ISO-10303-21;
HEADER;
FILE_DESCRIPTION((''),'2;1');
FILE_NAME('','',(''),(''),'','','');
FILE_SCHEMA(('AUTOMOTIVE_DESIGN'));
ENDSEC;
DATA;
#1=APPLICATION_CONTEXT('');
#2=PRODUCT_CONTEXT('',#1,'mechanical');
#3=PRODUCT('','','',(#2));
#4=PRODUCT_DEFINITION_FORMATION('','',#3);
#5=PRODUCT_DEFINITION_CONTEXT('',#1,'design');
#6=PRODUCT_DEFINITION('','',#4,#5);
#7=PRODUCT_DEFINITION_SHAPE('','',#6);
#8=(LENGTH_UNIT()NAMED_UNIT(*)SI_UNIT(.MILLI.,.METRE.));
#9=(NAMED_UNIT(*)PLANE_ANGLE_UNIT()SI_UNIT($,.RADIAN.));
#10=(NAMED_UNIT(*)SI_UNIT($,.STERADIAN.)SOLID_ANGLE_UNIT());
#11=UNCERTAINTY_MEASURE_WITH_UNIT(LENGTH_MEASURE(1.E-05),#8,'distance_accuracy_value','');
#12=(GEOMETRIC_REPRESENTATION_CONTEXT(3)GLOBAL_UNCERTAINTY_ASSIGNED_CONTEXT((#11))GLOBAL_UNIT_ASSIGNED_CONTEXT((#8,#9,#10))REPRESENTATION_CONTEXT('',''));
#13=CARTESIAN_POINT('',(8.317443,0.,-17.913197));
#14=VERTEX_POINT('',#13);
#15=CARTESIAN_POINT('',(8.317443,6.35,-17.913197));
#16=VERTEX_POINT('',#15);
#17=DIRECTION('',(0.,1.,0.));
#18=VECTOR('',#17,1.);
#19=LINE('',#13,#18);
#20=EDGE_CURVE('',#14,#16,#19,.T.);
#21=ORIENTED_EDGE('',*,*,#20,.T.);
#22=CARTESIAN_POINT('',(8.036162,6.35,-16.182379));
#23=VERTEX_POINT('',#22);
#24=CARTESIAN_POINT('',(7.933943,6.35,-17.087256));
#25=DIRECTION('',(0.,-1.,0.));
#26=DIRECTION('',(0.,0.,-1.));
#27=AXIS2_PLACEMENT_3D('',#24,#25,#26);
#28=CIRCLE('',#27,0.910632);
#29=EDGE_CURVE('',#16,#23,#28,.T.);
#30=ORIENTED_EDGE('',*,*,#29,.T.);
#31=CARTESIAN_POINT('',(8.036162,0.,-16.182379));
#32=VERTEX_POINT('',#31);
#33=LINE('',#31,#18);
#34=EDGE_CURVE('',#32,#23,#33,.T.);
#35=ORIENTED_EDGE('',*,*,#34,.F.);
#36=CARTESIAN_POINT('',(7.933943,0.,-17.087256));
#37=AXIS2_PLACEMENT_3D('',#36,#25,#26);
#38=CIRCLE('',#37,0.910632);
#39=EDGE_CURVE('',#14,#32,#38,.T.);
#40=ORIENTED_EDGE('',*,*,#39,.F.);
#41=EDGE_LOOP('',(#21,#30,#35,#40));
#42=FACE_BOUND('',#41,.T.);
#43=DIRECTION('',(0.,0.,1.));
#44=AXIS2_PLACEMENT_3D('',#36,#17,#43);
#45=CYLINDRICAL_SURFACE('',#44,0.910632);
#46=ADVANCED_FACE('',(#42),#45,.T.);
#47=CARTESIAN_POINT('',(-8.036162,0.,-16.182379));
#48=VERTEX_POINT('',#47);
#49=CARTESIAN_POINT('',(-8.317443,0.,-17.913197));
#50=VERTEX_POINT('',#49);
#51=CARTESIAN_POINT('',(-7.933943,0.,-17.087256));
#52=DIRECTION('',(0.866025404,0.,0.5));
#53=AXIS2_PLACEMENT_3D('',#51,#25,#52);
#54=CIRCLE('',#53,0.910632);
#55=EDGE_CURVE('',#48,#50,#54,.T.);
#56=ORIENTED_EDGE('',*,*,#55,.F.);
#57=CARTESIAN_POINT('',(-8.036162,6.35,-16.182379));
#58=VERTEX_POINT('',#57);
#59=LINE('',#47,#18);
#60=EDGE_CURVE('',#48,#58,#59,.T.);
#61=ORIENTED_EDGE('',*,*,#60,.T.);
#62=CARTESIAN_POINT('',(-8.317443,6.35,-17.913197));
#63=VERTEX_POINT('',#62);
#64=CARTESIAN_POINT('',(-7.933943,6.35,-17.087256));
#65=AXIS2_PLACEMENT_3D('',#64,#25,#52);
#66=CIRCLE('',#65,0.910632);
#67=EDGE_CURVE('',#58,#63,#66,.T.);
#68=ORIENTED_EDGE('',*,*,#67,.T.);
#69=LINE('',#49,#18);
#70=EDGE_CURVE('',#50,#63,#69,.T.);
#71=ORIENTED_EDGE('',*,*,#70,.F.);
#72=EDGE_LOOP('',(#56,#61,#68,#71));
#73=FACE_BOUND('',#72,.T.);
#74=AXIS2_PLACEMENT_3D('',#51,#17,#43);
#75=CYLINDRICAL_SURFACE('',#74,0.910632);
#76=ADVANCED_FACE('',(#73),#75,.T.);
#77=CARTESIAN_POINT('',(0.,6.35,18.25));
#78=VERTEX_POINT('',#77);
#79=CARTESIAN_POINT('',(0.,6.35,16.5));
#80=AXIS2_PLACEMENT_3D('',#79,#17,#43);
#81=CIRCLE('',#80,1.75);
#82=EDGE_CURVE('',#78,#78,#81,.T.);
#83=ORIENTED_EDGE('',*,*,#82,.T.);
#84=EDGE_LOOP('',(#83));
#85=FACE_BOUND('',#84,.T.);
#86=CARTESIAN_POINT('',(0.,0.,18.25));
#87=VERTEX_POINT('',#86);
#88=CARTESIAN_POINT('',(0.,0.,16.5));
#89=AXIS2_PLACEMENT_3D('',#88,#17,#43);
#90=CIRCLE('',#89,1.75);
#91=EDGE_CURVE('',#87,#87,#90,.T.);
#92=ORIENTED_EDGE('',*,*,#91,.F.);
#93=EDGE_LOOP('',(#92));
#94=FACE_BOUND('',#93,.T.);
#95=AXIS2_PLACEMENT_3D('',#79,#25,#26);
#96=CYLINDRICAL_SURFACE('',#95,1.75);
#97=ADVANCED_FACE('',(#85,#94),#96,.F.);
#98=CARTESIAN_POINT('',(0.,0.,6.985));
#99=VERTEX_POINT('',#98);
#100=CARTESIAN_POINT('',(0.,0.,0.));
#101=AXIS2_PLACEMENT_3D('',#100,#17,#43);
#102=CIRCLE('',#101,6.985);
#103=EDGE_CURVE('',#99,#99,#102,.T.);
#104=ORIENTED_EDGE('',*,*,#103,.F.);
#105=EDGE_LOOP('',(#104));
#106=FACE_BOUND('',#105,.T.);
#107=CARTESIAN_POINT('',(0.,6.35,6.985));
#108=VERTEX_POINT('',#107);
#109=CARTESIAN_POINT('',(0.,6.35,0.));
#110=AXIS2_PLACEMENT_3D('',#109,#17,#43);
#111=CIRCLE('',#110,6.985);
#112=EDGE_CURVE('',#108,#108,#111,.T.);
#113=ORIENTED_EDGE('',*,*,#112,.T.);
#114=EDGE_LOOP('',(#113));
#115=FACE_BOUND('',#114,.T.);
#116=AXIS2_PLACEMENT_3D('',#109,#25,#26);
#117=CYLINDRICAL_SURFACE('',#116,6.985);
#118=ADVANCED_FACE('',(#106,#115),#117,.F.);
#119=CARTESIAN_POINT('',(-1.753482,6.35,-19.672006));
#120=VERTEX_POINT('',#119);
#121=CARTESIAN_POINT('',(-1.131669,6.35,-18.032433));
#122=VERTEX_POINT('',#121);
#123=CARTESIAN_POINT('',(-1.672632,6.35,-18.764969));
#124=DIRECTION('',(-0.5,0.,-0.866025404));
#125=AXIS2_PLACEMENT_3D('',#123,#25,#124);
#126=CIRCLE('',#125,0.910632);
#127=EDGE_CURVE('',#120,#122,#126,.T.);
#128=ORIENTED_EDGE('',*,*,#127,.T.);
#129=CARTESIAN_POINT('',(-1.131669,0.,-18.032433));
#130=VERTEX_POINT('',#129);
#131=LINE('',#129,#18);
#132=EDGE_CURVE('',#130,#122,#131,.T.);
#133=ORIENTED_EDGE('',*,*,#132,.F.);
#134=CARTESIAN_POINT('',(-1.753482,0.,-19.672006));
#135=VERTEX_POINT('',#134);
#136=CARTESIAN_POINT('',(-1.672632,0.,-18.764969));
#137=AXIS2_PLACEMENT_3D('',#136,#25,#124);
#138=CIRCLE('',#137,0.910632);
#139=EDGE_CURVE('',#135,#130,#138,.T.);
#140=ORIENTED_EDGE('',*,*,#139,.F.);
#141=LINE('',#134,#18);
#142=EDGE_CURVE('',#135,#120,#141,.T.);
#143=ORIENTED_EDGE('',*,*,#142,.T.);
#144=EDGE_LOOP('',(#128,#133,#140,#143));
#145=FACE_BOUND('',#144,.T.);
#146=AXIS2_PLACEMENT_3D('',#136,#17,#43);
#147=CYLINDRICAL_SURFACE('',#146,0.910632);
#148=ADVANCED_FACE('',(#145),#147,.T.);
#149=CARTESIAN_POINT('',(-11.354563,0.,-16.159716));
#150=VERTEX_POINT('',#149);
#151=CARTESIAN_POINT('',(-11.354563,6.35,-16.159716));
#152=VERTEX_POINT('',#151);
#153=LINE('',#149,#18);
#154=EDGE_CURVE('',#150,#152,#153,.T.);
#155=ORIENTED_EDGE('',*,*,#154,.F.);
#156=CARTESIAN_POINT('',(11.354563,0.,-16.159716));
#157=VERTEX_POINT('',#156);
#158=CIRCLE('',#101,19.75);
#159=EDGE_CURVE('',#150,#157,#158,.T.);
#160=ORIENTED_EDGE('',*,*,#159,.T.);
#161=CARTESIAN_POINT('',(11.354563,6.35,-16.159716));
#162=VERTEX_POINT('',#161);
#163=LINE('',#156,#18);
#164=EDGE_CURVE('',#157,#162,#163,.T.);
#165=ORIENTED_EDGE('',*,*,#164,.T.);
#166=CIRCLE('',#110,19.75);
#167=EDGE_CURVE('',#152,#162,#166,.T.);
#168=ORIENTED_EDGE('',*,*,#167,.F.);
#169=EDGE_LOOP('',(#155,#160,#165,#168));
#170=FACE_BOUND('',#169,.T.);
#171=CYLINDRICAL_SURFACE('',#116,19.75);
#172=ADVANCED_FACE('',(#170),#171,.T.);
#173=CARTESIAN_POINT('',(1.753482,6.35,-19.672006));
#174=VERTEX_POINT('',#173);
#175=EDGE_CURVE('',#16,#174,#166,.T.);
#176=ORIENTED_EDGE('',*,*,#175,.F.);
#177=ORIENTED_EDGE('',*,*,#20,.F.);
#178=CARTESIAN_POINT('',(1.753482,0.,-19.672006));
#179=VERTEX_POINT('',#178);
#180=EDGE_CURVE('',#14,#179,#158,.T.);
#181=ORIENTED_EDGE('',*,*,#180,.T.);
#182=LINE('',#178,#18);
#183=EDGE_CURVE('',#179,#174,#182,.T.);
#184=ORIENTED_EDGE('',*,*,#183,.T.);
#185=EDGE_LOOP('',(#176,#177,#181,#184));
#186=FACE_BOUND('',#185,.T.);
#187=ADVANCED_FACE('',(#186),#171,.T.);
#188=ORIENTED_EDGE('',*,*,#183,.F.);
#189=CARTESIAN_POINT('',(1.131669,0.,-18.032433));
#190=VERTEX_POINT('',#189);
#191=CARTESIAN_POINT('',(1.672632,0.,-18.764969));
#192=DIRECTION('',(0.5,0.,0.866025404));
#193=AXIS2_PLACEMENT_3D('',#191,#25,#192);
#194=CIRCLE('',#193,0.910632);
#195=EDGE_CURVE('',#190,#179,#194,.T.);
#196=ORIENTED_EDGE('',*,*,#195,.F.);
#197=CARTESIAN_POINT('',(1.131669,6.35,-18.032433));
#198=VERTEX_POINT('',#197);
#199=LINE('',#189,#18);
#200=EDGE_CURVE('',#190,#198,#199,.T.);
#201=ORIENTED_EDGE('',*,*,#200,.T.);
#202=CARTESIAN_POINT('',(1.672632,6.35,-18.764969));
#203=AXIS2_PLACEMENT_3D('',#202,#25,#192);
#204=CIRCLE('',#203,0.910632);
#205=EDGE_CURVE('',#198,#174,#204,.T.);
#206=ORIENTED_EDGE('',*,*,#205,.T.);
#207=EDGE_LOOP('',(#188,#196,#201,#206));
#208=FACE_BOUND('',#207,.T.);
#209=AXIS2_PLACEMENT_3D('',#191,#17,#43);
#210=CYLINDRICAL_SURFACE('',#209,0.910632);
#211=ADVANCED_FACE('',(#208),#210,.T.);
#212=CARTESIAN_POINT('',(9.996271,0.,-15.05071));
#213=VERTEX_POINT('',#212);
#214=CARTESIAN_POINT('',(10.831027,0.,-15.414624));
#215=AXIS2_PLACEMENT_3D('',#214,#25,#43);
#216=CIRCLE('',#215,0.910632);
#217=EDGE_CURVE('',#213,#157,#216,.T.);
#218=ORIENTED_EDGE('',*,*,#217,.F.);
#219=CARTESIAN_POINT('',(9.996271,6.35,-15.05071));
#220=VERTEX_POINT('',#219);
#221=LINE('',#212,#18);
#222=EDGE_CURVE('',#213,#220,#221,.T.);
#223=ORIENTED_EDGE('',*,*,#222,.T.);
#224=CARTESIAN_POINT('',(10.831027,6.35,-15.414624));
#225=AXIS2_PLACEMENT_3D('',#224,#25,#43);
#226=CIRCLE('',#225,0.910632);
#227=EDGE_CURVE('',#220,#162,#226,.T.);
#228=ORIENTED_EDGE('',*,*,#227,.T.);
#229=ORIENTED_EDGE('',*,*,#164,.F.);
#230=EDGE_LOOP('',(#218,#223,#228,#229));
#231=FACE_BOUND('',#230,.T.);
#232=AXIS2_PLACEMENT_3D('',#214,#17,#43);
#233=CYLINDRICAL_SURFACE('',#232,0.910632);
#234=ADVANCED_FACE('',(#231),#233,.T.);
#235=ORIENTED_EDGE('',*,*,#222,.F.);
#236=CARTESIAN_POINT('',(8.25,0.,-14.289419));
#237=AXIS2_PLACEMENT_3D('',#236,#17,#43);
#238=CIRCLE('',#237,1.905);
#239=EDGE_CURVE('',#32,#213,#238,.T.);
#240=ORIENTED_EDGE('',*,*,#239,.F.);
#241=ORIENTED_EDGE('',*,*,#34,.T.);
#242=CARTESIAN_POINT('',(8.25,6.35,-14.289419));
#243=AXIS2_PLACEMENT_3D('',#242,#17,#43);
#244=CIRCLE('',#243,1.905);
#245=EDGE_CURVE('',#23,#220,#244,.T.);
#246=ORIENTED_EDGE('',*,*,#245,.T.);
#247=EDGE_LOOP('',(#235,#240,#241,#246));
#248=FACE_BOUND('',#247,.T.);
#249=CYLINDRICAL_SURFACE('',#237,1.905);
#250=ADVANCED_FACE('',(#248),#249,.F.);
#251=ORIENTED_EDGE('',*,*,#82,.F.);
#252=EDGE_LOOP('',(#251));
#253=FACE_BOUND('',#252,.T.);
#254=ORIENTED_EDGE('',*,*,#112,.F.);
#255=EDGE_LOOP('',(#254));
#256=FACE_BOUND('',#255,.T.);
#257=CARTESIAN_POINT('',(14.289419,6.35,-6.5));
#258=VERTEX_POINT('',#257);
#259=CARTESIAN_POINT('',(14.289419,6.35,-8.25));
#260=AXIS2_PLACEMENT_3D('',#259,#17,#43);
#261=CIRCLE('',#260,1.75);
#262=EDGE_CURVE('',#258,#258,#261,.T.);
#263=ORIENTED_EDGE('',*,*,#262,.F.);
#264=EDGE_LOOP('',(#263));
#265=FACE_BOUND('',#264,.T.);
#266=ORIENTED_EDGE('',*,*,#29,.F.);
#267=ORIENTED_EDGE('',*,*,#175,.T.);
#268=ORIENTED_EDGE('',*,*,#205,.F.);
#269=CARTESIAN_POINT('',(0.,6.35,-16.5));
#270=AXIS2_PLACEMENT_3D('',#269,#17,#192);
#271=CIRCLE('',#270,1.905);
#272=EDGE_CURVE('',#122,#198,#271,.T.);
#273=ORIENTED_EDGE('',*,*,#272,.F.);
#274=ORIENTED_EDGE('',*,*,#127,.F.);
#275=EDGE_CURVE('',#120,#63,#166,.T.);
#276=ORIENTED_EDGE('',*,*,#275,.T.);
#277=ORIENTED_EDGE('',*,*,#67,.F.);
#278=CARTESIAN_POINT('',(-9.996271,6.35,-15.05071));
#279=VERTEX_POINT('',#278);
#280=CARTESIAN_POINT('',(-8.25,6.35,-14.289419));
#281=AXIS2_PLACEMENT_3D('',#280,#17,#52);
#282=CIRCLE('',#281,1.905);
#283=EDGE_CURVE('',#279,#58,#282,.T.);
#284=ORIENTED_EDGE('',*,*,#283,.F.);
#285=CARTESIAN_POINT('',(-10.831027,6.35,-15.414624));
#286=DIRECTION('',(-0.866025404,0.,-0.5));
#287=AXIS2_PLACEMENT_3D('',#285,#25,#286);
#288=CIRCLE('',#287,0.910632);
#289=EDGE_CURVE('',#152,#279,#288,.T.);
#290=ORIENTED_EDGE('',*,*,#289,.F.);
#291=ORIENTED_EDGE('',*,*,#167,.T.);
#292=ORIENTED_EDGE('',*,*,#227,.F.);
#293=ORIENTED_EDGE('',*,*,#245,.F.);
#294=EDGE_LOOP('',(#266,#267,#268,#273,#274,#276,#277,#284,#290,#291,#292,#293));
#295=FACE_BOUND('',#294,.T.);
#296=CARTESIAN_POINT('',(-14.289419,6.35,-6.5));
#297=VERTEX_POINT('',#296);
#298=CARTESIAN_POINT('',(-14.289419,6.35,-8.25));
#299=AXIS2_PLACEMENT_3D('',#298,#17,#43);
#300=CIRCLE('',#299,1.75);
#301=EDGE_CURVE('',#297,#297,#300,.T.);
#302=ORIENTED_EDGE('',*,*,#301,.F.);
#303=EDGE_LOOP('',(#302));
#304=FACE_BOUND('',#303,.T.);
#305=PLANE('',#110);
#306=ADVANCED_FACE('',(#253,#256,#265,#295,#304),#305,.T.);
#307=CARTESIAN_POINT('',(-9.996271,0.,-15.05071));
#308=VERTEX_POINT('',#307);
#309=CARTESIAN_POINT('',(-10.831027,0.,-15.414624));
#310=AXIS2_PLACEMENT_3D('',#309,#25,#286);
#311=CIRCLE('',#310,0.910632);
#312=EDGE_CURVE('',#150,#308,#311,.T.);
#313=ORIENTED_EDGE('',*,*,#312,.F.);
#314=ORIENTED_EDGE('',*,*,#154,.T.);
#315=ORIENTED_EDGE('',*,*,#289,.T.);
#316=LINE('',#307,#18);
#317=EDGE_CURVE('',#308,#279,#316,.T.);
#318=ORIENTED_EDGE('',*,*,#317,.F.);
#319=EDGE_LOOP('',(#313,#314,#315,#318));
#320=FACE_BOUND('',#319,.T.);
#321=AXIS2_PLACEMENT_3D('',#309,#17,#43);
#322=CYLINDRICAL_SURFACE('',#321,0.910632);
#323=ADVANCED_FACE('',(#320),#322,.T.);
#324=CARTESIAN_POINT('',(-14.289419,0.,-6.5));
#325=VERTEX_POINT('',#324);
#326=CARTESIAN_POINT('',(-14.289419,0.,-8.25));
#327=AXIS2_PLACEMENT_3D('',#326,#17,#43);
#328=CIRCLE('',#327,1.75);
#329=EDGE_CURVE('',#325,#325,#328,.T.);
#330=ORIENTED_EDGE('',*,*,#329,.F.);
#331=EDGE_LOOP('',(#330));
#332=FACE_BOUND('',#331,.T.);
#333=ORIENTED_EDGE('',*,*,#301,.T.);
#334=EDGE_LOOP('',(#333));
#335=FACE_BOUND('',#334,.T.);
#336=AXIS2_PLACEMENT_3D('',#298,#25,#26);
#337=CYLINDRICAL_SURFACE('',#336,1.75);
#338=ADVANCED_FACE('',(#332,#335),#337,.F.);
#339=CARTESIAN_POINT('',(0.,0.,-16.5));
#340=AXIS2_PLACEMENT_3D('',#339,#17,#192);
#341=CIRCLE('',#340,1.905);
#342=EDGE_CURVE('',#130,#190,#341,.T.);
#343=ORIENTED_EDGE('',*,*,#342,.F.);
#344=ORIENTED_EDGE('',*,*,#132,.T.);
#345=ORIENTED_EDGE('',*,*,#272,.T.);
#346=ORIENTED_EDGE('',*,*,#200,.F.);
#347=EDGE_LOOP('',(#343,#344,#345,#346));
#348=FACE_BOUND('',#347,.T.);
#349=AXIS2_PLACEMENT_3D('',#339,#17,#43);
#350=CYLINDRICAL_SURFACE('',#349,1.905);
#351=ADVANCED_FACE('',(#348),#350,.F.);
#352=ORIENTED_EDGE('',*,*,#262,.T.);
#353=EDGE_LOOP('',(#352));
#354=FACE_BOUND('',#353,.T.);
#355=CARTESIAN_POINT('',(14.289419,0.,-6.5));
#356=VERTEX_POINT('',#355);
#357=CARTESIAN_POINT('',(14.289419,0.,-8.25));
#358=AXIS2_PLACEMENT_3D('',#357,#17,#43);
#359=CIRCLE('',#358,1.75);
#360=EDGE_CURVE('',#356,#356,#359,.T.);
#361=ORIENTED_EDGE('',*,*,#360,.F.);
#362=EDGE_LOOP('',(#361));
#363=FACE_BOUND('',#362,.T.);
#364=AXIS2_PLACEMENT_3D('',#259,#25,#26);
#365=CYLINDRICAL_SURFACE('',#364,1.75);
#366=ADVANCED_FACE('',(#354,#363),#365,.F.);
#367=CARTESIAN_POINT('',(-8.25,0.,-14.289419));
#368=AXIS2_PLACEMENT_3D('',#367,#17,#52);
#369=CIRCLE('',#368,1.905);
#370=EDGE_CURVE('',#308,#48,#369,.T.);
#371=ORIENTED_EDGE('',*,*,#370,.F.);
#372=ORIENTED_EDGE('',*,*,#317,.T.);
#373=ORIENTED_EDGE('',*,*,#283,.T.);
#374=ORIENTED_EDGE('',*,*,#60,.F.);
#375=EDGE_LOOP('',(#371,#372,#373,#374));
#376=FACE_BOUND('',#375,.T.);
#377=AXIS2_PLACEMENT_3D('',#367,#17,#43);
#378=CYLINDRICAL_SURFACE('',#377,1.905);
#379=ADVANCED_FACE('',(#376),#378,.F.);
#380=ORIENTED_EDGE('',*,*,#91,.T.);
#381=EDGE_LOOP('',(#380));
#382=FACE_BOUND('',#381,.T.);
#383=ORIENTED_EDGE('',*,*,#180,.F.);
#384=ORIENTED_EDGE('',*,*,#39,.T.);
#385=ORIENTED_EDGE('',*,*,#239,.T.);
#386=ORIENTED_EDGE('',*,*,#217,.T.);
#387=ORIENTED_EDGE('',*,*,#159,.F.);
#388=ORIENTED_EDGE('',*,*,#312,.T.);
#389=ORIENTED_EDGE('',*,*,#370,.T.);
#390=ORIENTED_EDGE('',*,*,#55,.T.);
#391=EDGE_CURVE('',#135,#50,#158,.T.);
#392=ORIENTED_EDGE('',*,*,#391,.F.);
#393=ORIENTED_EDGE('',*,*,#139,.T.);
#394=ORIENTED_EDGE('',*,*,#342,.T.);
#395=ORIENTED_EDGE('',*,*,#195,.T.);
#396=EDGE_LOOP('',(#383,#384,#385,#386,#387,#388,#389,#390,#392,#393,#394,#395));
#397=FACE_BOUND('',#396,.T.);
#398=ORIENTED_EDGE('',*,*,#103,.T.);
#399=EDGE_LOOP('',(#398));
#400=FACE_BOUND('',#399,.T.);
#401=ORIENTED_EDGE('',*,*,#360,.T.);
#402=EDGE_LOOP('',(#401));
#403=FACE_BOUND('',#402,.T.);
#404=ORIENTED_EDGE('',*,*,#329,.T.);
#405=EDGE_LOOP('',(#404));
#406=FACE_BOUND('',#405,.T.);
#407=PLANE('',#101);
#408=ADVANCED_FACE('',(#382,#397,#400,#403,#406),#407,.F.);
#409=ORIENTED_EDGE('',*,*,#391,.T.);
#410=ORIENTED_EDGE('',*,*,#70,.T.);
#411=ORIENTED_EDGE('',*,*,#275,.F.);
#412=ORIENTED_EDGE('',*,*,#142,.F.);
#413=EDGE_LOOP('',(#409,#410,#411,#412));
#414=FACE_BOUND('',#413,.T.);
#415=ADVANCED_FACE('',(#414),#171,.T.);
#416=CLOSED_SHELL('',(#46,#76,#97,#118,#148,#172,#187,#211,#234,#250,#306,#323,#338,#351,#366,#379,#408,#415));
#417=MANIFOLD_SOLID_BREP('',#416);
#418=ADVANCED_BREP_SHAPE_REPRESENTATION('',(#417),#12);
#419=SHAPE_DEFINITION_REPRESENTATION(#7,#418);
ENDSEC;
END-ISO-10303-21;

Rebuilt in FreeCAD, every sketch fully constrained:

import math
import FreeCAD as App
import Part
import Sketcher

V = App.Vector
Q = App.Units.Quantity

doc = App.newDocument("Part")
params = doc.addObject("Spreadsheet::Sheet", "Params")
for row, (alias, value) in enumerate([
    ("sketch1_diameter", "0.55 in"),
    ("pad1_length", "0.25 in"),
    ("sketch2_radius", "0.075 in"),
], start=1):
    params.set(f"A{row}", alias)
    params.set(f"B{row}", "=" + value)
    params.setAlias(f"B{row}", alias)

body = doc.addObject("PartDesign::Body", "Body")

# Sketch on XZ plane
sketch1 = body.newObject("Sketcher::SketchObject", "Sketch")
sketch1.AttachmentSupport = (doc.getObject("XZ_Plane"), [""])
sketch1.MapMode = "FlatFace"
sketch1.addGeometry([
    Part.Circle(V(0, 0, 0), V(0, 0, 1), 19.8),  # 0
    Part.Circle(V(0, 16.5, 0), V(0, 0, 1), 1.8),  # 1
    Part.Circle(V(-14.3, -8.2, 0), V(0, 0, 1), 1.8),  # 2
    Part.Circle(V(0, 0, 0), V(0, 0, 1), 7),  # 3
    Part.Circle(V(14.3, -8.2, 0), V(0, 0, 1), 1.8),  # 4
], False)
sketch1.addConstraint([
    Sketcher.Constraint("Coincident", 0, 3, -1, 1),
    Sketcher.Constraint("Coincident", 3, 3, -1, 1),
    Sketcher.Constraint("Equal", 1, 2),
    Sketcher.Constraint("Equal", 2, 4),
    Sketcher.Constraint("Symmetric", 2, 3, 4, 3, -2),
    Sketcher.Constraint("PointOnObject", 1, 3, -2),
    Sketcher.Constraint("Diameter", 3, Q("0.55 in")),
    Sketcher.Constraint("Diameter", 0, 39.5),
    Sketcher.Constraint("Diameter", 1, 3.5),
    Sketcher.Constraint("DistanceY", -1, 1, 1, 3, 16.5),
    Sketcher.Constraint("DistanceY", 2, 3, -1, 1, 8.25),
    Sketcher.Constraint("DistanceX", 2, 3, -1, 1, 14.289419),
])
sketch1.setExpression("Constraints[6]", "Params.sketch1_diameter")
pad1 = body.newObject("PartDesign::Pad", "Pad")
pad1.Profile = sketch1
pad1.setExpression("Length", "Params.pad1_length")
pad1.Reversed = True

# Sketch on XZ plane
sketch2 = body.newObject("Sketcher::SketchObject", "Sketch001")
sketch2.AttachmentSupport = (doc.getObject("XZ_Plane"), [""])
sketch2.MapMode = "FlatFace"
sketch2.AttachmentOffset = App.Placement(V(0, 0, -0.25 * 25.4), App.Rotation())
sketch2.addGeometry([
    Part.ArcOfCircle(Part.Circle(V(8.2, -14.3, 0), V(0, 0, 1), 1.9), math.radians(-24), math.radians(264)),
    Part.ArcOfCircle(Part.Circle(V(10.8, -15.4, 0), V(0, 0, 1), 0.9), math.radians(156), math.radians(305)),
    Part.ArcOfCircle(Part.Circle(V(0, 0, 0), V(0, 0, 1), 19.7), math.radians(-65.09), math.radians(-54.91)),
    Part.ArcOfCircle(Part.Circle(V(7.9, -17.1, 0), V(0, 0, 1), 0.9), math.radians(-65), math.radians(84)),
], False)
sketch2.addConstraint([
    Sketcher.Constraint("Tangent", 0, 1, 1, 1),
    Sketcher.Constraint("Tangent", 1, 2, 2, 2),
    Sketcher.Constraint("Tangent", 2, 1, 3, 1),
    Sketcher.Constraint("Tangent", 3, 2, 0, 2),
    Sketcher.Constraint("Coincident", 2, 3, -1, 1),
    Sketcher.Constraint("Equal", 1, 3),
    Sketcher.Constraint("Radius", 0, Q("0.075 in")),
    Sketcher.Constraint("Radius", 2, 19.75),
    Sketcher.Constraint("Radius", 1, 0.910632),
    Sketcher.Constraint("DistanceX", -1, 1, 0, 3, 8.25),
    Sketcher.Constraint("DistanceY", 0, 3, -1, 1, 14.289419),
])
sketch2.setExpression("Constraints[6]", "Params.sketch2_radius")
pocket1 = body.newObject("PartDesign::Pocket", "Pocket")
pocket1.Profile = sketch2
pocket1.Type = "ThroughAll"
pocket1.Reversed = True
doc.recompute()

polarpattern = body.newObject("PartDesign::PolarPattern", "PolarPattern")
polarpattern.Originals = [pocket1]
polarpattern.Axis = (doc.getObject("Y_Axis"), [""])
polarpattern.Angle = 60
polarpattern.Occurrences = 3
body.Tip = polarpattern

doc.recompute()
